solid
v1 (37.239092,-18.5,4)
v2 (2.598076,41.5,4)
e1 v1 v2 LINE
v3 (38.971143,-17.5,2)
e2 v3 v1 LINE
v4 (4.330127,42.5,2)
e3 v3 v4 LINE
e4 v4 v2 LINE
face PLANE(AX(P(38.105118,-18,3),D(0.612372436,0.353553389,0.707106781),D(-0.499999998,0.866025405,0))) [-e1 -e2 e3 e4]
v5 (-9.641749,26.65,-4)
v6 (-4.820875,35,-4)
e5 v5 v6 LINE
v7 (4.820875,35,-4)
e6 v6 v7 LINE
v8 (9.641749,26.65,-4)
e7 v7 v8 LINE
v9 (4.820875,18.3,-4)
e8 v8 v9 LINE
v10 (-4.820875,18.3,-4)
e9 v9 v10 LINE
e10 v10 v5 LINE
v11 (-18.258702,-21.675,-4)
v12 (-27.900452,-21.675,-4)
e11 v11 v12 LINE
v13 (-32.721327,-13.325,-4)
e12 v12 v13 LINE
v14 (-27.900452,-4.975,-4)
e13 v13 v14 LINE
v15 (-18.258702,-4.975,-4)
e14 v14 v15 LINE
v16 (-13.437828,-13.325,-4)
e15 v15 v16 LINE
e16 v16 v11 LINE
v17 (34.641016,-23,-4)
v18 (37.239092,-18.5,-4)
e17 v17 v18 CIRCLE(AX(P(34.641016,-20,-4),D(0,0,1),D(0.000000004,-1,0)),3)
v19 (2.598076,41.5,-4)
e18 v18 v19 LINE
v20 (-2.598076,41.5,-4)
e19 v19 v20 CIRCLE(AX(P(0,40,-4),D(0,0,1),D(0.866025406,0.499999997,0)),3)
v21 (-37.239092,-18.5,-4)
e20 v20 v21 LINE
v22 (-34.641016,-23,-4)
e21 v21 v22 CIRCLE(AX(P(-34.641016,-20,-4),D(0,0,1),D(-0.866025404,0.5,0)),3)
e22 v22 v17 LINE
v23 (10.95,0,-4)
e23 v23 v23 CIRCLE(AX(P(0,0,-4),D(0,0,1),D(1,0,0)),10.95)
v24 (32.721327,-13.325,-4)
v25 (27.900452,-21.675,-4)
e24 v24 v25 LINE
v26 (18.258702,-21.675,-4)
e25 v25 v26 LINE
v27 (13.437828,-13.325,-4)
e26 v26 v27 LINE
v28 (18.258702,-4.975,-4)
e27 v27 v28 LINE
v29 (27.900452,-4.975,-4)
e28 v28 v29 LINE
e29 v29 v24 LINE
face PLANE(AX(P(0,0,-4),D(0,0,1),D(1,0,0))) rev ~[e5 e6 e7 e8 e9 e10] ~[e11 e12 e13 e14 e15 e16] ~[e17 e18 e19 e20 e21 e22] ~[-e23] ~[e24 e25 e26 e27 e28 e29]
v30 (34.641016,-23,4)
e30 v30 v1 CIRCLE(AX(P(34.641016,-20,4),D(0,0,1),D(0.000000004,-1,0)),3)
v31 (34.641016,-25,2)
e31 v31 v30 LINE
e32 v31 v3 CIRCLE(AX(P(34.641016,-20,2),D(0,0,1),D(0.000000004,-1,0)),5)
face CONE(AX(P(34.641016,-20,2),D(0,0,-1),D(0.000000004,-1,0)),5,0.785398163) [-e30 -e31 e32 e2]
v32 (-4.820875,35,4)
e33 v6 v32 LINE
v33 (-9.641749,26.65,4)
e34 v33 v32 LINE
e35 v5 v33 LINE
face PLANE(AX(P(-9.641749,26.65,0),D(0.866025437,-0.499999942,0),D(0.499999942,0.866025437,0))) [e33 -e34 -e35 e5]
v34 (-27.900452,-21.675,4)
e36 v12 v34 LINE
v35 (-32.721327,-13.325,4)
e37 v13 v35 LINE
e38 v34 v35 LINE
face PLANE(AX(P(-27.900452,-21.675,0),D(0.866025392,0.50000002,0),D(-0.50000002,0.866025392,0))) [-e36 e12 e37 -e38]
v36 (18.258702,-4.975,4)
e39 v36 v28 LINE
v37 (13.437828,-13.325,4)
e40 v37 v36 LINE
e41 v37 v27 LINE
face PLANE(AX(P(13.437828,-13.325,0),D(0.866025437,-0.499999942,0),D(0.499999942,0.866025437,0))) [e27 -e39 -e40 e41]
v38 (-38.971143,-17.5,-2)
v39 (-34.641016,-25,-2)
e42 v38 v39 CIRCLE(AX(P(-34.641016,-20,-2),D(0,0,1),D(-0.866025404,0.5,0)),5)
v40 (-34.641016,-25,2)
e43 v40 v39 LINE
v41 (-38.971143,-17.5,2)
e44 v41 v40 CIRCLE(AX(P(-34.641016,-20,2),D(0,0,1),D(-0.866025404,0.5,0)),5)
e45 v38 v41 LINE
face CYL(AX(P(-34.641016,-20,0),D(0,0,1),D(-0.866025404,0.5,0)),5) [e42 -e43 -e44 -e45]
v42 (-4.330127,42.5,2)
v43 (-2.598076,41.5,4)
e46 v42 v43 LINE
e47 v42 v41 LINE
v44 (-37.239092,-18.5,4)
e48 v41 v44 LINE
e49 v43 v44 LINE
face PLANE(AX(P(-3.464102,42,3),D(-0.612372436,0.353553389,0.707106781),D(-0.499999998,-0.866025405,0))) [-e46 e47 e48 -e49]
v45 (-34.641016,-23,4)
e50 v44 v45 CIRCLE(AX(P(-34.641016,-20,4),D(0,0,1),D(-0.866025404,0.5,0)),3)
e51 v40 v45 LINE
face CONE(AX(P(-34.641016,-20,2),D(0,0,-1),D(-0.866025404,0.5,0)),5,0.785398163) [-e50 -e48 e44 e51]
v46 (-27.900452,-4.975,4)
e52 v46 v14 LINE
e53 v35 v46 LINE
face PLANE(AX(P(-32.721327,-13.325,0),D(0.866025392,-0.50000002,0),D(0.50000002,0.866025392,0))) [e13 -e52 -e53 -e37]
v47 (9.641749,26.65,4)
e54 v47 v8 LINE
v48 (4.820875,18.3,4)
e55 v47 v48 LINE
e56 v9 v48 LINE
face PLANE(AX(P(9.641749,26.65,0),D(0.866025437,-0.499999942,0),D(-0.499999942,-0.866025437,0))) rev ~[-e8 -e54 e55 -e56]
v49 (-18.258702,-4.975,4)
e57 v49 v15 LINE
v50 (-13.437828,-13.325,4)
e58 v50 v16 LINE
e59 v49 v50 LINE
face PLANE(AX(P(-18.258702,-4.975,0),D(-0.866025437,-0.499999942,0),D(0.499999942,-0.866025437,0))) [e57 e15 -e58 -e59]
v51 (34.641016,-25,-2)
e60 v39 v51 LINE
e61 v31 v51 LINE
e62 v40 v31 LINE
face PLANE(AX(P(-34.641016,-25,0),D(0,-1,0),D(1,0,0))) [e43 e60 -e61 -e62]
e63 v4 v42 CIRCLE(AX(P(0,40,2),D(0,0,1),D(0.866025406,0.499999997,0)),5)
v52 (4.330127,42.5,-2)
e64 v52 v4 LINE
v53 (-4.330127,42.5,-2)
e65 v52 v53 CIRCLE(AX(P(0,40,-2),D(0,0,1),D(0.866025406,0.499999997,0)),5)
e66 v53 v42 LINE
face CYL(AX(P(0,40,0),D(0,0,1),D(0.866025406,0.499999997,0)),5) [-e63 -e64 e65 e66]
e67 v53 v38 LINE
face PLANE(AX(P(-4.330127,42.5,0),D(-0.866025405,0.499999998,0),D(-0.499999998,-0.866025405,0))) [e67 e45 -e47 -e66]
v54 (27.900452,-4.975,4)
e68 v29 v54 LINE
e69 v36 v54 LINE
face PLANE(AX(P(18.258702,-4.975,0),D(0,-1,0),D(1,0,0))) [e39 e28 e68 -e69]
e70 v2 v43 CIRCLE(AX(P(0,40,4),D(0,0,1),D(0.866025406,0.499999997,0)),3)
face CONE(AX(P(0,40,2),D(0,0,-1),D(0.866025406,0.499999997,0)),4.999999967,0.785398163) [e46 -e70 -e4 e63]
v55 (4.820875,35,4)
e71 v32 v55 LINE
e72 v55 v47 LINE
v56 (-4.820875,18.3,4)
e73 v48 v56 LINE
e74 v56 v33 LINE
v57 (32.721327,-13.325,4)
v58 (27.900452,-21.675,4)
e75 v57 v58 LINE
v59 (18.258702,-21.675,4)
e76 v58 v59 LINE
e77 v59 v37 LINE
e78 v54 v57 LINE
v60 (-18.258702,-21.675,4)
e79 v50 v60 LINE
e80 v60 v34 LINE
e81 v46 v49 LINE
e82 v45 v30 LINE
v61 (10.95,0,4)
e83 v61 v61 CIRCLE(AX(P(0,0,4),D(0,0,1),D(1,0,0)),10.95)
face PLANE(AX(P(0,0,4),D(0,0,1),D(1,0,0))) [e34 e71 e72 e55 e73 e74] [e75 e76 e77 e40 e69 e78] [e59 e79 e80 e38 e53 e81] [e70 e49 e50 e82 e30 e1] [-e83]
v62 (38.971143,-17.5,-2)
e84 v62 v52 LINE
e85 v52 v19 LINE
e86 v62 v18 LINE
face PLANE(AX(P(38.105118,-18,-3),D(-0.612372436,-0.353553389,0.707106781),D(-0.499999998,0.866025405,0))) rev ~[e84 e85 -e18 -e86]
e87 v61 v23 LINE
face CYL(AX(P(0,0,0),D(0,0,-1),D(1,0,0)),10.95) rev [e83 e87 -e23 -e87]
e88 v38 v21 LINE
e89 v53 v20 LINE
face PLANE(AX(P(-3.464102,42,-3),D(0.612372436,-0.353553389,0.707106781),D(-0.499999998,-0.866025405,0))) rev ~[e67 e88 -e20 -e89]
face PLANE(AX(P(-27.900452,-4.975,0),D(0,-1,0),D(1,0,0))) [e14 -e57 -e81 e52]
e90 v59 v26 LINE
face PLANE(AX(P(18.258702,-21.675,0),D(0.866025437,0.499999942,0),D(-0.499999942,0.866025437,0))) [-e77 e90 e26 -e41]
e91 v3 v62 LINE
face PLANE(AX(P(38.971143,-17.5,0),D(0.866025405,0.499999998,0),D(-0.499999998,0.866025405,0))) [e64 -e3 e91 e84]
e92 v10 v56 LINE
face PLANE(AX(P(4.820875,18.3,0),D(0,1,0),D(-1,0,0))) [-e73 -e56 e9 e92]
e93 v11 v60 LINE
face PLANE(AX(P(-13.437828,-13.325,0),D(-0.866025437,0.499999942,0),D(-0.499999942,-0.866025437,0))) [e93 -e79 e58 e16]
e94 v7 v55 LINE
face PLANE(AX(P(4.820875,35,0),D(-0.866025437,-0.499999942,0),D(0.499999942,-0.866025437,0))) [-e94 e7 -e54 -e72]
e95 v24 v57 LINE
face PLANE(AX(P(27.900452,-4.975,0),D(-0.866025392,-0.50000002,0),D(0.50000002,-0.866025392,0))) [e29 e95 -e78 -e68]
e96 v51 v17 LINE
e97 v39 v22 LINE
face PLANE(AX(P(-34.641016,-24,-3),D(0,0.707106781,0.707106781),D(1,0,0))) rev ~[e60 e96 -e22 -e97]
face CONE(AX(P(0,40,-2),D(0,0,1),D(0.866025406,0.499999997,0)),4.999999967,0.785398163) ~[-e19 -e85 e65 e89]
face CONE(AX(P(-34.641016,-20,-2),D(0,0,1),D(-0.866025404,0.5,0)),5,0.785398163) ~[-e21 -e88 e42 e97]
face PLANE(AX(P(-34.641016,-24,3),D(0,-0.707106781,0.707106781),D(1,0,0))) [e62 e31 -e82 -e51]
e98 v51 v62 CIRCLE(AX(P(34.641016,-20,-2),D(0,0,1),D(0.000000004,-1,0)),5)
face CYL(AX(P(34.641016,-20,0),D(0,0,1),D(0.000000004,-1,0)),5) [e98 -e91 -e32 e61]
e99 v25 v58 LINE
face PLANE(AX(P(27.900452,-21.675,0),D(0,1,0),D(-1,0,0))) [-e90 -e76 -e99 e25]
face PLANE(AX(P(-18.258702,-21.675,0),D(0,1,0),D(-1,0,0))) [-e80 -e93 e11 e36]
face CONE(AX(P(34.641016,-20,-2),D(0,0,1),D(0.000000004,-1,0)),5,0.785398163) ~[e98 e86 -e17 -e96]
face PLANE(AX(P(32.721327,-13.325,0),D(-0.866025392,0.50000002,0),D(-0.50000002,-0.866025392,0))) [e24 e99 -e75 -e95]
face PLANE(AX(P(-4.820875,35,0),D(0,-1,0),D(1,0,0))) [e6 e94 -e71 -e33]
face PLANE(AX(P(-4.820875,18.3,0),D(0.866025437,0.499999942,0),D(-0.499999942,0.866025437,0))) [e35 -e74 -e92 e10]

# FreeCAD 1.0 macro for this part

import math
import FreeCAD as App
import Part
import Sketcher
from FreeCAD import Vector
Q = App.Units.Quantity


def edges_at(feature, points):
    """Names of the edges that pass closest to the given points."""
    edges = feature.Shape.Edges
    near = lambda p: min(range(len(edges)), key=lambda i: edges[i].distToShape(Part.Vertex(*p))[0])
    return sorted({f"Edge{near(p) + 1}" for p in points})

doc = App.newDocument("Part")
params = doc.addObject("Spreadsheet::Sheet", "Params")
for row, (alias, value) in enumerate([
    ("sketch1_radius", "5 mm"),
    ("sketch1_diameter", "21.9 mm"),
    ("pad1_length", "8 mm"),
    ("chamfer_size", "2 mm"),
], start=1):
    params.set(f"A{row}", alias)
    params.set(f"B{row}", "=" + value)
    params.setAlias(f"B{row}", alias)

body = doc.addObject("PartDesign::Body", "Body")

# Sketch on XY plane
sketch1 = body.newObject("Sketcher::SketchObject", "Sketch")
sketch1.AttachmentSupport = (doc.getObject("XY_Plane"), [""])
sketch1.MapMode = "FlatFace"
sketch1.addGeometry([
    Part.LineSegment(Vector(38.971143, -17.5, 0), Vector(4.330127, 42.5, 0)),  # 0
    Part.ArcOfCircle(Part.Circle(Vector(0, 40, 0), Vector(0, 0, 1), 5), math.radians(30), math.radians(150)),  # 1
    Part.LineSegment(Vector(-4.330127, 42.5, 0), Vector(-38.971143, -17.5, 0)),  # 2
    Part.ArcOfCircle(Part.Circle(Vector(-34.641016, -20, 0), Vector(0, 0, 1), 5), math.radians(150), math.radians(270)),  # 3
    Part.LineSegment(Vector(-34.641016, -25, 0), Vector(34.641016, -25, 0)),  # 4
    Part.ArcOfCircle(Part.Circle(Vector(34.641016, -20, 0), Vector(0, 0, 1), 5), math.radians(-90), math.radians(30)),  # 5
    Part.LineSegment(Vector(-13.437828, -13.325, 0), Vector(-18.258702, -21.675, 0)),  # 6
    Part.LineSegment(Vector(-18.258702, -21.675, 0), Vector(-27.900452, -21.675, 0)),  # 7
    Part.LineSegment(Vector(-27.900452, -21.675, 0), Vector(-32.721327, -13.325, 0)),  # 8
    Part.LineSegment(Vector(-32.721327, -13.325, 0), Vector(-27.900452, -4.975, 0)),  # 9
    Part.LineSegment(Vector(-27.900452, -4.975, 0), Vector(-18.258702, -4.975, 0)),  # 10
    Part.LineSegment(Vector(-18.258702, -4.975, 0), Vector(-13.437828, -13.325, 0)),  # 11
    Part.LineSegment(Vector(18.258702, -4.975, 0), Vector(27.900452, -4.975, 0)),  # 12
    Part.LineSegment(Vector(27.900452, -4.975, 0), Vector(32.721327, -13.325, 0)),  # 13
    Part.LineSegment(Vector(32.721327, -13.325, 0), Vector(27.900452, -21.675, 0)),  # 14
    Part.LineSegment(Vector(27.900452, -21.675, 0), Vector(18.258702, -21.675, 0)),  # 15
    Part.LineSegment(Vector(18.258702, -21.675, 0), Vector(13.437828, -13.325, 0)),  # 16
    Part.LineSegment(Vector(13.437828, -13.325, 0), Vector(18.258702, -4.975, 0)),  # 17
    Part.Circle(Vector(0, 0, 0), Vector(0, 0, 1), 10.95),  # 18
    Part.LineSegment(Vector(4.820875, 35, 0), Vector(9.641749, 26.65, 0)),  # 19
    Part.LineSegment(Vector(9.641749, 26.65, 0), Vector(4.820875, 18.3, 0)),  # 20
    Part.LineSegment(Vector(4.820875, 18.3, 0), Vector(-4.820875, 18.3, 0)),  # 21
    Part.LineSegment(Vector(-4.820875, 18.3, 0), Vector(-9.641749, 26.65, 0)),  # 22
    Part.LineSegment(Vector(-9.641749, 26.65, 0), Vector(-4.820875, 35, 0)),  # 23
    Part.LineSegment(Vector(-4.820875, 35, 0), Vector(4.820875, 35, 0)),  # 24
], False)
sketch1.addConstraint([
    Sketcher.Constraint("Tangent", 0, 2, 1, 1),
    Sketcher.Constraint("Tangent", 1, 2, 2, 1),
    Sketcher.Constraint("Tangent", 2, 2, 3, 1),
    Sketcher.Constraint("Tangent", 3, 2, 4, 1),
    Sketcher.Constraint("Tangent", 4, 2, 5, 1),
    Sketcher.Constraint("Tangent", 5, 2, 0, 1),
    Sketcher.Constraint("Coincident", 6, 2, 7, 1),
    Sketcher.Constraint("Coincident", 7, 2, 8, 1),
    Sketcher.Constraint("Coincident", 8, 2, 9, 1),
    Sketcher.Constraint("Coincident", 9, 2, 10, 1),
    Sketcher.Constraint("Coincident", 10, 2, 11, 1),
    Sketcher.Constraint("Coincident", 11, 2, 6, 1),
    Sketcher.Constraint("Coincident", 12, 2, 13, 1),
    Sketcher.Constraint("Coincident", 13, 2, 14, 1),
    Sketcher.Constraint("Coincident", 14, 2, 15, 1),
    Sketcher.Constraint("Coincident", 15, 2, 16, 1),
    Sketcher.Constraint("Coincident", 16, 2, 17, 1),
    Sketcher.Constraint("Coincident", 17, 2, 12, 1),
    Sketcher.Constraint("Coincident", 19, 2, 20, 1),
    Sketcher.Constraint("Coincident", 20, 2, 21, 1),
    Sketcher.Constraint("Coincident", 21, 2, 22, 1),
    Sketcher.Constraint("Coincident", 22, 2, 23, 1),
    Sketcher.Constraint("Coincident", 23, 2, 24, 1),
    Sketcher.Constraint("Coincident", 24, 2, 19, 1),
    Sketcher.Constraint("Horizontal", 4),
    Sketcher.Constraint("Horizontal", 7),
    Sketcher.Constraint("Horizontal", 10),
    Sketcher.Constraint("Horizontal", 12),
    Sketcher.Constraint("Horizontal", 15),
    Sketcher.Constraint("Horizontal", 21),
    Sketcher.Constraint("Horizontal", 24),
    Sketcher.Constraint("Coincident", 18, 3, -1, 1),
    Sketcher.Constraint("Equal", 1, 3),
    Sketcher.Constraint("Equal", 3, 5),
    Sketcher.Constraint("Symmetric", 0, 2, 1, 2, -2),
    Sketcher.Constraint("Symmetric", 9, 2, 12, 2, -2),
    Sketcher.Constraint("Symmetric", 8, 2, 13, 2, -2),
    Sketcher.Constraint("Symmetric", 7, 2, 14, 2, -2),
    Sketcher.Constraint("Symmetric", 11, 2, 16, 2, -2),
    Sketcher.Constraint("Symmetric", 19, 2, 22, 2, -2),
    Sketcher.Constraint("Parallel", 2, 6),
    Sketcher.Constraint("Parallel", 0, 8),
    Sketcher.Constraint("Parallel", 6, 9),
    Sketcher.Constraint("Parallel", 8, 11),
    Sketcher.Constraint("Parallel", 13, 16),
    Sketcher.Constraint("Parallel", 14, 17),
    Sketcher.Constraint("Parallel", 16, 19),
    Sketcher.Constraint("Parallel", 17, 20),
    Sketcher.Constraint("Parallel", 19, 22),
    Sketcher.Constraint("Parallel", 20, 23),
    Sketcher.Constraint("Horizontal", 8, 2, 11, 2),
    Sketcher.Constraint("Vertical", 7, 2, 9, 2),
    Sketcher.Constraint("Vertical", 21, 2, 23, 2),
    Sketcher.Constraint("Equal", 15, 21),
    Sketcher.Constraint("Equal", 17, 19),
    Sketcher.Constraint("Radius", 1, Q("5 mm")),
    Sketcher.Constraint("Diameter", 18, Q("21.9 mm")),
    Sketcher.Constraint("Angle", 0, Q("120 deg")),
    Sketcher.Constraint("DistanceY", -1, 1, 1, 3, Q("40 mm")),
    Sketcher.Constraint("DistanceY", 3, 3, -1, 1, Q("20 mm")),
    Sketcher.Constraint("DistanceY", -1, 1, 23, 2, Q("35 mm")),
    Sketcher.Constraint("DistanceY", -1, 1, 20, 2, Q("18.3 mm")),
    Sketcher.Constraint("DistanceY", 6, 2, -1, 1, Q("21.675 mm")),
    Sketcher.Constraint("DistanceX", 1, 2, 20, 2, Q("9.151002 mm")),
    Sketcher.Constraint("DistanceX", 6, 2, -1, 1, Q("18.258702 mm")),
])
sketch1.setExpression("Constraints[55]", "Params.sketch1_radius")
sketch1.setExpression("Constraints[56]", "Params.sketch1_diameter")
pad1 = body.newObject("PartDesign::Pad", "Pad")
pad1.Profile = sketch1
pad1.setExpression("Length", "Params.pad1_length")
pad1.Midplane = True
doc.recompute()

chamfer = body.newObject("PartDesign::Chamfer", "Chamfer")
chamfer.Base = (pad1, edges_at(pad1, [(-21.651, 12.5, 4), (21.651, 12.5, 4), (-21.651, 12.5, -4)]))
chamfer.setExpression("Size", "Params.chamfer_size")

doc.recompute()
